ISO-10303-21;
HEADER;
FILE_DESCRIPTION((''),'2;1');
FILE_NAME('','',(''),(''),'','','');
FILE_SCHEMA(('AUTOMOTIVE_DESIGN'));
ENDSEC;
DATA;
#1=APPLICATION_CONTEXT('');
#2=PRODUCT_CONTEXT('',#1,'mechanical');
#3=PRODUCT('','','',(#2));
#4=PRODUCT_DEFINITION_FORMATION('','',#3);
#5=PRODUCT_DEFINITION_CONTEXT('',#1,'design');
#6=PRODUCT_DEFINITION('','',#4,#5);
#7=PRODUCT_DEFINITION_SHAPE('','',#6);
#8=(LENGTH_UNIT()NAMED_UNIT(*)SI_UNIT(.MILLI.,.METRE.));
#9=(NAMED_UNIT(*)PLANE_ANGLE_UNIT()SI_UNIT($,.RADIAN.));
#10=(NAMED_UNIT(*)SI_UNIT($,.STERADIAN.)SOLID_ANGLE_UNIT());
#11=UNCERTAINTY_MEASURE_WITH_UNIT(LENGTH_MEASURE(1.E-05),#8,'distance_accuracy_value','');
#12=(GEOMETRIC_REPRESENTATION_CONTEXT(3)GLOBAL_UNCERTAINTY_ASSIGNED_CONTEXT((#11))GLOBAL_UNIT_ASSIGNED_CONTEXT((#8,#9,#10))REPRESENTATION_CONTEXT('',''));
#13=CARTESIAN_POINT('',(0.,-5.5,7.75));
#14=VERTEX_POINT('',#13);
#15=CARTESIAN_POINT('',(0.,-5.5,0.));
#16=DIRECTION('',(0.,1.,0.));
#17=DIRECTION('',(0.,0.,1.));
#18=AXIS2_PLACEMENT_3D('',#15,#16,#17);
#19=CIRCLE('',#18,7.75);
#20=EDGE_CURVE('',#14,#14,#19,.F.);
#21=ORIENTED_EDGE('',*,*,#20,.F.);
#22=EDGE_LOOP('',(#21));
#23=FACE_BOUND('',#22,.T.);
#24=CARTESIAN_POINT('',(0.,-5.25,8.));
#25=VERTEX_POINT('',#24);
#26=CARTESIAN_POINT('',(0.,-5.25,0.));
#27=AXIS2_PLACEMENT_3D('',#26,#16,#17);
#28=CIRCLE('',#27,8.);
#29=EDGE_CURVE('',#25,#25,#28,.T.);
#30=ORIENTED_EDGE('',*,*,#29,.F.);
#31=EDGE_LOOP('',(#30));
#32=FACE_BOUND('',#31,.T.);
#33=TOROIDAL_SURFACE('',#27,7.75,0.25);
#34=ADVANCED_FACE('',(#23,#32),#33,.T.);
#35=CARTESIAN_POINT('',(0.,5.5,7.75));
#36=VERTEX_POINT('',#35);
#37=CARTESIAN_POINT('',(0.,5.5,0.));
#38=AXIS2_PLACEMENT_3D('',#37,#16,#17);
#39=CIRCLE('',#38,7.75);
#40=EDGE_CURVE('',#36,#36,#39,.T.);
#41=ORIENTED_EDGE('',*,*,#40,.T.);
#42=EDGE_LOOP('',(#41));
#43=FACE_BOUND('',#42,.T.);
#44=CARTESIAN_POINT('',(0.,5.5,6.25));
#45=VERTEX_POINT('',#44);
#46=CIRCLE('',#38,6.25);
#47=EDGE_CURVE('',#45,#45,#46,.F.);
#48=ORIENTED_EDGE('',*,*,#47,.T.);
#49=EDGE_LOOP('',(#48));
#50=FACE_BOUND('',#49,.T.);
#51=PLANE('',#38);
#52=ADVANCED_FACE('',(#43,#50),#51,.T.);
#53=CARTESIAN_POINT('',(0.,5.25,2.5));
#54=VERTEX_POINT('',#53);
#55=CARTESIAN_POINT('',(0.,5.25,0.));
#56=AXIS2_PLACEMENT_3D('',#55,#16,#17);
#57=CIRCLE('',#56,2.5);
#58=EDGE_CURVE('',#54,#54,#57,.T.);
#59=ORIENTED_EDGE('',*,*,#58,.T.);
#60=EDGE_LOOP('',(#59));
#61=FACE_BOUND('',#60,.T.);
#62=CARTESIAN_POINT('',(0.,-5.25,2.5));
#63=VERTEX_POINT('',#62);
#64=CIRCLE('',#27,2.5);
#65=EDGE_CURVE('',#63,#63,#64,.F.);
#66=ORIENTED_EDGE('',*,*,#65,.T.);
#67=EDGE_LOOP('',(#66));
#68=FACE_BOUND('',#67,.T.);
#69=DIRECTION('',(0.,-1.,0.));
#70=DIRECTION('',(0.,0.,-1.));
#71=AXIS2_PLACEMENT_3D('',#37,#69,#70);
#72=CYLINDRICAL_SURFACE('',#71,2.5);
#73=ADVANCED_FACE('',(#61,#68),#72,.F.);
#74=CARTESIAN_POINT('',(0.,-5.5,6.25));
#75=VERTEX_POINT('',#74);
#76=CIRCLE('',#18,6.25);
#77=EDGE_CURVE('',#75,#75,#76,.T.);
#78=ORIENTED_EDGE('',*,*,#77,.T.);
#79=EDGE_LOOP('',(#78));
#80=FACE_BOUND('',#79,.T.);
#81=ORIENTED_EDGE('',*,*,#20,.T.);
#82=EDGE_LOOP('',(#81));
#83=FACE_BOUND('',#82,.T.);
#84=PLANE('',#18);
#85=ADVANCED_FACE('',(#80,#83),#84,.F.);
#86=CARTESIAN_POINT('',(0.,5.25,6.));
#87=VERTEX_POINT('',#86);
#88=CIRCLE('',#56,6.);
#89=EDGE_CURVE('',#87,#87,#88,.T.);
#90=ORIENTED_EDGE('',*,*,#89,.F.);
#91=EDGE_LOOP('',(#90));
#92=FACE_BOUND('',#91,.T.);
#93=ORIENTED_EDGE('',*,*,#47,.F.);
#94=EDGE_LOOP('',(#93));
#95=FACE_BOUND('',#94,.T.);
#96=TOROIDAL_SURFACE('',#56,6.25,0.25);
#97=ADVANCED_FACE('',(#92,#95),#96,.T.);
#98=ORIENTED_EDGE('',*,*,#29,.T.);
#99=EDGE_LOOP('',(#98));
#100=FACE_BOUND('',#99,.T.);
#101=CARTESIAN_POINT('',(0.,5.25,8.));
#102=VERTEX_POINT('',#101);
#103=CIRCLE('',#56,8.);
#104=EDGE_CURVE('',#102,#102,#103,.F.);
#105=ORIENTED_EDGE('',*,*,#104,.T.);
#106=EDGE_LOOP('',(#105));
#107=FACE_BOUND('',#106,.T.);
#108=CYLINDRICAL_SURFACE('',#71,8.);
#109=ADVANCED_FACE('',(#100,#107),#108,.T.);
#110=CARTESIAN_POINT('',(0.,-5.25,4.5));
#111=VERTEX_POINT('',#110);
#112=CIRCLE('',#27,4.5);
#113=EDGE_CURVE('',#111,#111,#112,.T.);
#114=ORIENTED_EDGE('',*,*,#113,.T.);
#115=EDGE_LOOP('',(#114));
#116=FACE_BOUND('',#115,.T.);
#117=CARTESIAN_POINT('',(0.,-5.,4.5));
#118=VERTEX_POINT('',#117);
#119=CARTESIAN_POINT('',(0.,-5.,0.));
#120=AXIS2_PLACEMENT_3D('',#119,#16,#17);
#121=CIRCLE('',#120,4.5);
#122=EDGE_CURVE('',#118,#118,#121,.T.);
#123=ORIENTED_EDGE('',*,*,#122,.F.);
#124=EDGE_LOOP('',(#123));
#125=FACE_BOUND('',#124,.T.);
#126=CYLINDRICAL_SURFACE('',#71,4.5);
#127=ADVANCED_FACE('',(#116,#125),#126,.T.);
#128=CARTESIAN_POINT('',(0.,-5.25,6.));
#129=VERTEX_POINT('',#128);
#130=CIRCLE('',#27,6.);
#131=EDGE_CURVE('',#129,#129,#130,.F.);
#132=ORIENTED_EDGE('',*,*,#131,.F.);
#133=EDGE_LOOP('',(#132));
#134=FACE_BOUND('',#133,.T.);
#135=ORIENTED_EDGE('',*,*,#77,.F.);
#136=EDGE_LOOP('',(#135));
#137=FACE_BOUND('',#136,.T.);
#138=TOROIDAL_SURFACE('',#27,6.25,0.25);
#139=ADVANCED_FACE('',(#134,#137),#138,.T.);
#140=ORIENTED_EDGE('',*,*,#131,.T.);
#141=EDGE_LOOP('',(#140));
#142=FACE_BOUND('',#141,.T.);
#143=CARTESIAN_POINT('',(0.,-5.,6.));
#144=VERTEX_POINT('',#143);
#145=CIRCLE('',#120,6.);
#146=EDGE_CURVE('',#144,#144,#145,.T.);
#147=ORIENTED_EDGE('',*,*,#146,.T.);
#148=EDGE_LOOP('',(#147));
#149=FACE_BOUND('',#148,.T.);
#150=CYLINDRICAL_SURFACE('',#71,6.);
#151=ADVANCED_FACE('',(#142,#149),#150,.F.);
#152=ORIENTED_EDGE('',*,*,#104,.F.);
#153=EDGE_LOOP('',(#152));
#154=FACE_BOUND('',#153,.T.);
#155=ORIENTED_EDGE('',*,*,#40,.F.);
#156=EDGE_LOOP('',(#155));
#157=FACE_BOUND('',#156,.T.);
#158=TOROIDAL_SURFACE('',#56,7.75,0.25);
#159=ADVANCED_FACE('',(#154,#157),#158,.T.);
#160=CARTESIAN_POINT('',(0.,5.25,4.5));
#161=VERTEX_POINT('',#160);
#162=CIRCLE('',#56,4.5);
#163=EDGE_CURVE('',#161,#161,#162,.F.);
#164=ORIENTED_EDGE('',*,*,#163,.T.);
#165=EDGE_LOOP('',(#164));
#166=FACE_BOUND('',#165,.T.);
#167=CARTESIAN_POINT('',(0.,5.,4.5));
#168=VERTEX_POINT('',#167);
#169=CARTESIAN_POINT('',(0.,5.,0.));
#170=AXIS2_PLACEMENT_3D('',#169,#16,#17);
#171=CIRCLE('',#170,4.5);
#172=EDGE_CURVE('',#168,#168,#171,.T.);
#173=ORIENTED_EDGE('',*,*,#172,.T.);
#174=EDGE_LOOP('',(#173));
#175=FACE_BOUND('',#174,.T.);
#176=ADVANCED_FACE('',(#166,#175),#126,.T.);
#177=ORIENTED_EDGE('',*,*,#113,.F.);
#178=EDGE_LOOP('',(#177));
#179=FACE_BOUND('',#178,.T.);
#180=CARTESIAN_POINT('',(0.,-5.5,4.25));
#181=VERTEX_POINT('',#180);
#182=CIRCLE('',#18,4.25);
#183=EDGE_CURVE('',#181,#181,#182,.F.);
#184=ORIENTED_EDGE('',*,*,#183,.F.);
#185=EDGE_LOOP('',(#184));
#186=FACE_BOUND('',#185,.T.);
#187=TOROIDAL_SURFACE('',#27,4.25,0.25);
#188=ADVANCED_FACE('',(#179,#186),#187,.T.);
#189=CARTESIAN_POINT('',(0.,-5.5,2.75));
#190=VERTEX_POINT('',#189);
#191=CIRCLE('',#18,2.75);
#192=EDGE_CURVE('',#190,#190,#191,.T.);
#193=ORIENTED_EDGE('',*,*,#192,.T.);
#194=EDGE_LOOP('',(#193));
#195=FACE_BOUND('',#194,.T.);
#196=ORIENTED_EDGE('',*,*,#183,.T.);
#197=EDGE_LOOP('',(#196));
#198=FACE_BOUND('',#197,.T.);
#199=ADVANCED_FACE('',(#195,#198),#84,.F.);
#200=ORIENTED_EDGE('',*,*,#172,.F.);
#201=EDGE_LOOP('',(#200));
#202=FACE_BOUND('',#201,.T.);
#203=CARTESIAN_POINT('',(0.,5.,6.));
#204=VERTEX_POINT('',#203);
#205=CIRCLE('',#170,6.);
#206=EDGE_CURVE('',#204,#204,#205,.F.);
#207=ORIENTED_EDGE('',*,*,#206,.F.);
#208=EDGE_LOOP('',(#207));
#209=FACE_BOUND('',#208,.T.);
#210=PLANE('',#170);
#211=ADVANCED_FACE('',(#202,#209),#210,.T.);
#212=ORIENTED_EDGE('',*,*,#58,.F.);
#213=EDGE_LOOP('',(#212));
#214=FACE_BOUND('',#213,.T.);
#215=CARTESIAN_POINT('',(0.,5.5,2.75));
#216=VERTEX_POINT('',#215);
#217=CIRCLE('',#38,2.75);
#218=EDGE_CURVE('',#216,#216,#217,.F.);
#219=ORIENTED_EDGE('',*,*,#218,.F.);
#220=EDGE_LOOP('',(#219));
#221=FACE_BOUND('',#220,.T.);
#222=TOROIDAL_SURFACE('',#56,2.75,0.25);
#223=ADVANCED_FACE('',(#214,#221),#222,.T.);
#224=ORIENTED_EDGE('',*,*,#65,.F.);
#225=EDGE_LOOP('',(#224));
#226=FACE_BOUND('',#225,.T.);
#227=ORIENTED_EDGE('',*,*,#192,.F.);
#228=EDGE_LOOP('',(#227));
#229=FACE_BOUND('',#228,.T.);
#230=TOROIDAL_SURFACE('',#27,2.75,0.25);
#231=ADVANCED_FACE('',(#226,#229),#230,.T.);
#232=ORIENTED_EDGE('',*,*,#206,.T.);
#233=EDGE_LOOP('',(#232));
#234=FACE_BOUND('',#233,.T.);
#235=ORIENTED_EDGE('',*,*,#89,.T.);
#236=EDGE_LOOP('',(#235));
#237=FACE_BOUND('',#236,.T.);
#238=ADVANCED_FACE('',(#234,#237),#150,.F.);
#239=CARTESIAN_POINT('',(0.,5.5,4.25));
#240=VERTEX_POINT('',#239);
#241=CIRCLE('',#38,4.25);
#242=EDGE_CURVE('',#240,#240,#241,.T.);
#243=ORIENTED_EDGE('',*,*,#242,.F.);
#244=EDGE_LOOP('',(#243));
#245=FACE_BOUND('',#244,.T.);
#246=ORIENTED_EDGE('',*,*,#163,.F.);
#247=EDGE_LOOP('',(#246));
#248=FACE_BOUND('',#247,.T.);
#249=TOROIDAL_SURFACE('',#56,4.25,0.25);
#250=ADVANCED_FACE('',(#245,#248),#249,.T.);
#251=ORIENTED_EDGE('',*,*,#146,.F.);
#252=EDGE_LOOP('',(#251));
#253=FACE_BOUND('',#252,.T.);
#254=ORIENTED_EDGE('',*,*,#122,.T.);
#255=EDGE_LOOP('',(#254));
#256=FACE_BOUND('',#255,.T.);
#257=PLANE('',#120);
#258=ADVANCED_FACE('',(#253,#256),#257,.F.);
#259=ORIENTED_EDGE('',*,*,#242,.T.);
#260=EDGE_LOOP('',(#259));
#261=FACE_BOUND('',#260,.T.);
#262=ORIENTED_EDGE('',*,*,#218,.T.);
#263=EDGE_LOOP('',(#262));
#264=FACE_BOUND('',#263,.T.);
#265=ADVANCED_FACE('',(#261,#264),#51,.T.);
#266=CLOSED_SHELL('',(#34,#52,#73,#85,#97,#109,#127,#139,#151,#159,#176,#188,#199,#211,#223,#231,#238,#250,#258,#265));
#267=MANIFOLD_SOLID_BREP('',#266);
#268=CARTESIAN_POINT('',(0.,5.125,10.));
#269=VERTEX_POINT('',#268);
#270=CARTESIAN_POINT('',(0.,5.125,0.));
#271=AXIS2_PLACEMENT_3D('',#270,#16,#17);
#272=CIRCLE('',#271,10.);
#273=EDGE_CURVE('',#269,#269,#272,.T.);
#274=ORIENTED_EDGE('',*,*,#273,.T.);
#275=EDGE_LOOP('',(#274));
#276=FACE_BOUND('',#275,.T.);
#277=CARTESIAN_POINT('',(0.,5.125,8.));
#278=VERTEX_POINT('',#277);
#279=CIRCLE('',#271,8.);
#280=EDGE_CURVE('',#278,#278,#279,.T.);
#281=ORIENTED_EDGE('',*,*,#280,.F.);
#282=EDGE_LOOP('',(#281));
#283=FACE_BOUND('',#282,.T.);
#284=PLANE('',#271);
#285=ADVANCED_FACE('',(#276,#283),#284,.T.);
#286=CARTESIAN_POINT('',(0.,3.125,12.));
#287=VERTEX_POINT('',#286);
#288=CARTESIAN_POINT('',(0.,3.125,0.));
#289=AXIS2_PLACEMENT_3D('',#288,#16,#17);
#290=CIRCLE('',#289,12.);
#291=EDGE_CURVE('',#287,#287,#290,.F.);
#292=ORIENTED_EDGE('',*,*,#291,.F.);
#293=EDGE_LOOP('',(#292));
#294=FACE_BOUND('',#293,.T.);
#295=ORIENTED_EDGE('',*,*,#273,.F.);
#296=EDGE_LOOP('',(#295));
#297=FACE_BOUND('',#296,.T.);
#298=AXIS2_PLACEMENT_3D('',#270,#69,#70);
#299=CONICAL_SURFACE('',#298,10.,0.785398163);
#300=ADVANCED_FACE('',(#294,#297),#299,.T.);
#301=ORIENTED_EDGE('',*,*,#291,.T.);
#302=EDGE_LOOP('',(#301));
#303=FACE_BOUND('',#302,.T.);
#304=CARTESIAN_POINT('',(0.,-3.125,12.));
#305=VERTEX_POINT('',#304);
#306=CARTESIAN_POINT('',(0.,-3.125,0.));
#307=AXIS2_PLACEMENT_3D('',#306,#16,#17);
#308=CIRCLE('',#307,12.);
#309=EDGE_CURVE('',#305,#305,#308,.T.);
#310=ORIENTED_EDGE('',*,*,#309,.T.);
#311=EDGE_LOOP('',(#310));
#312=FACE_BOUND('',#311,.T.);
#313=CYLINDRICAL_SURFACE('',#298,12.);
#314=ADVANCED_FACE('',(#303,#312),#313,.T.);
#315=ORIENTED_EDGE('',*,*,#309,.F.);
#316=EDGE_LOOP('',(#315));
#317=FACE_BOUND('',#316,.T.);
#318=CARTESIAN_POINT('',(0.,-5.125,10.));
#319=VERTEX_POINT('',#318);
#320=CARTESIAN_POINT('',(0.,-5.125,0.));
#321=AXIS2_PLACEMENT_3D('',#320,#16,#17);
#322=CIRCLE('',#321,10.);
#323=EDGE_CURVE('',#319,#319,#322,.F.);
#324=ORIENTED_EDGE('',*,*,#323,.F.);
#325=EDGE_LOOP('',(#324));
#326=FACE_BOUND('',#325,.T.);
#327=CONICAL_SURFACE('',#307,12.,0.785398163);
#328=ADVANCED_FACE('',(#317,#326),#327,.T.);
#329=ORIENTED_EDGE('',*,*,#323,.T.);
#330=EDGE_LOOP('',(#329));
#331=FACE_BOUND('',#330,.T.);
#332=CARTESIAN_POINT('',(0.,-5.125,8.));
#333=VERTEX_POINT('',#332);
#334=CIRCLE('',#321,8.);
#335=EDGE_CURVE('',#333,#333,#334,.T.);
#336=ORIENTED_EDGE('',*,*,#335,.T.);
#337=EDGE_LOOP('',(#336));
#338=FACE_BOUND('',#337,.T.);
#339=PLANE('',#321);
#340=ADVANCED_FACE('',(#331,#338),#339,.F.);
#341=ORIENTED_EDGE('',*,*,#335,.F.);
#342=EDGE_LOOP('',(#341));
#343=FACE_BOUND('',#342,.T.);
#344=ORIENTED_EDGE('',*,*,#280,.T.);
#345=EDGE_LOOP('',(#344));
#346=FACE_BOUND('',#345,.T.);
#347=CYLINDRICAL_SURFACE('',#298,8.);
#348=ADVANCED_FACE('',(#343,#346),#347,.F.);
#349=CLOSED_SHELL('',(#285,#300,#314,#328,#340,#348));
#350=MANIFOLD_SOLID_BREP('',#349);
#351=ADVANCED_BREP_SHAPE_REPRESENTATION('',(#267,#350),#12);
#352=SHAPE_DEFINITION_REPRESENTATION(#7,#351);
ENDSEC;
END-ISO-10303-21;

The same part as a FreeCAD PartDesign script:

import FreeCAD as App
import Part
import Sketcher


def edges_at(feature, points):
    """Names of the edges that pass closest to the given points."""
    edges = feature.Shape.Edges
    near = lambda p: min(range(len(edges)), key=lambda i: edges[i].distToShape(Part.Vertex(*p))[0])
    return sorted({f"Edge{near(p) + 1}" for p in points})

doc = App.newDocument("Part")
body = doc.addObject("PartDesign::Body", "Body")

# Sketch on XZ plane
sketch1 = body.newObject("Sketcher::SketchObject", "Sketch")
sketch1.AttachmentSupport = (doc.getObject("XZ_Plane"), [""])
sketch1.MapMode = "FlatFace"
sketch1.addGeometry([
    Part.Circle(App.Vector(0, 0, 0), App.Vector(0, 0, 1), 12),
    Part.Circle(App.Vector(0, 0, 0), App.Vector(0, 0, 1), 8),
], False)
sketch1.addConstraint([
    Sketcher.Constraint("Coincident", 0, 3, -1, 1),
    Sketcher.Constraint("Coincident", 1, 3, -1, 1),
    Sketcher.Constraint("Diameter", 0, 24.0),
    Sketcher.Constraint("Diameter", 1, 16.0),
])
pad1 = body.newObject("PartDesign::Pad", "Pad")
pad1.Profile = sketch1
pad1.Length = 10.25
pad1.Midplane = True
doc.recompute()

chamfer = body.newObject("PartDesign::Chamfer", "Chamfer")
chamfer.Base = (pad1, edges_at(pad1, [(0, 5.125, -12), (0, -5.125, -12)]))
chamfer.Size = 2
body2 = doc.addObject("PartDesign::Body", "Body001")

# Sketch on XZ plane
sketch2 = body2.newObject("Sketcher::SketchObject", "Sketch001")
sketch2.AttachmentSupport = (doc.getObject("XZ_Plane001"), [""])
sketch2.MapMode = "FlatFace"
sketch2.addGeometry([
    Part.Circle(App.Vector(0, 0, 0), App.Vector(0, 0, 1), 8),
    Part.Circle(App.Vector(0, 0, 0), App.Vector(0, 0, 1), 6),
], False)
sketch2.addConstraint([
    Sketcher.Constraint("Coincident", 0, 3, -1, 1),
    Sketcher.Constraint("Coincident", 1, 3, -1, 1),
    Sketcher.Constraint("Diameter", 0, 16.0),
    Sketcher.Constraint("Diameter", 1, 12.0),
])
pad2 = body2.newObject("PartDesign::Pad", "Pad001")
pad2.Profile = sketch2
pad2.Length = 11
pad2.Midplane = True
body3 = doc.addObject("PartDesign::Body", "Body002")

# Sketch on XZ plane
sketch3 = body3.newObject("Sketcher::SketchObject", "Sketch002")
sketch3.AttachmentSupport = (doc.getObject("XZ_Plane002"), [""])
sketch3.MapMode = "FlatFace"
sketch3.addGeometry([
    Part.Circle(App.Vector(0, 0, 0), App.Vector(0, 0, 1), 4.5),
    Part.Circle(App.Vector(0, 0, 0), App.Vector(0, 0, 1), 2.5),
], False)
sketch3.addConstraint([
    Sketcher.Constraint("Coincident", 0, 3, -1, 1),
    Sketcher.Constraint("Coincident", 1, 3, -1, 1),
    Sketcher.Constraint("Diameter", 0, 9.0),
    Sketcher.Constraint("Diameter", 1, 5.0),
])
pad3 = body3.newObject("PartDesign::Pad", "Pad002")
pad3.Profile = sketch3
pad3.Length = 11
pad3.Midplane = True
body2.AllowCompound = True
doc.recompute()

boolean = body2.newObject("PartDesign::Boolean", "Boolean")
boolean.Type = "Fuse"
boolean.addObjects([body3])

# Sketch on XZ plane
sketch4 = body2.newObject("Sketcher::SketchObject", "Sketch003")
sketch4.AttachmentSupport = (doc.getObject("XZ_Plane001"), [""])
sketch4.MapMode = "FlatFace"
sketch4.addGeometry([
    Part.Circle(App.Vector(0, 0, 0), App.Vector(0, 0, 1), 6),
    Part.Circle(App.Vector(0, 0, 0), App.Vector(0, 0, 1), 4.5),
], False)
sketch4.addConstraint([
    Sketcher.Constraint("Coincident", 0, 3, -1, 1),
    Sketcher.Constraint("Coincident", 1, 3, -1, 1),
    Sketcher.Constraint("Diameter", 0, 12.0),
    Sketcher.Constraint("Diameter", 1, 9.0),
])
pad4 = body2.newObject("PartDesign::Pad", "Pad003")
pad4.Profile = sketch4
pad4.Length = 10
pad4.Midplane = True
doc.recompute()

fillet = body2.newObject("PartDesign::Fillet", "Fillet")
fillet.Base = (pad4, edges_at(pad4, [
    (0, 5.5, -4.5),
    (0, 5.5, -6),
    (0, -5.5, -8),
    (0, 5.5, -8),
    (0, -5.5, -6),
    (0, -5.5, -4.5),
    (0, -5.5, -2.5),
    (0, 5.5, -2.5),
]))
fillet.Radius = 0.25

doc.recompute()
